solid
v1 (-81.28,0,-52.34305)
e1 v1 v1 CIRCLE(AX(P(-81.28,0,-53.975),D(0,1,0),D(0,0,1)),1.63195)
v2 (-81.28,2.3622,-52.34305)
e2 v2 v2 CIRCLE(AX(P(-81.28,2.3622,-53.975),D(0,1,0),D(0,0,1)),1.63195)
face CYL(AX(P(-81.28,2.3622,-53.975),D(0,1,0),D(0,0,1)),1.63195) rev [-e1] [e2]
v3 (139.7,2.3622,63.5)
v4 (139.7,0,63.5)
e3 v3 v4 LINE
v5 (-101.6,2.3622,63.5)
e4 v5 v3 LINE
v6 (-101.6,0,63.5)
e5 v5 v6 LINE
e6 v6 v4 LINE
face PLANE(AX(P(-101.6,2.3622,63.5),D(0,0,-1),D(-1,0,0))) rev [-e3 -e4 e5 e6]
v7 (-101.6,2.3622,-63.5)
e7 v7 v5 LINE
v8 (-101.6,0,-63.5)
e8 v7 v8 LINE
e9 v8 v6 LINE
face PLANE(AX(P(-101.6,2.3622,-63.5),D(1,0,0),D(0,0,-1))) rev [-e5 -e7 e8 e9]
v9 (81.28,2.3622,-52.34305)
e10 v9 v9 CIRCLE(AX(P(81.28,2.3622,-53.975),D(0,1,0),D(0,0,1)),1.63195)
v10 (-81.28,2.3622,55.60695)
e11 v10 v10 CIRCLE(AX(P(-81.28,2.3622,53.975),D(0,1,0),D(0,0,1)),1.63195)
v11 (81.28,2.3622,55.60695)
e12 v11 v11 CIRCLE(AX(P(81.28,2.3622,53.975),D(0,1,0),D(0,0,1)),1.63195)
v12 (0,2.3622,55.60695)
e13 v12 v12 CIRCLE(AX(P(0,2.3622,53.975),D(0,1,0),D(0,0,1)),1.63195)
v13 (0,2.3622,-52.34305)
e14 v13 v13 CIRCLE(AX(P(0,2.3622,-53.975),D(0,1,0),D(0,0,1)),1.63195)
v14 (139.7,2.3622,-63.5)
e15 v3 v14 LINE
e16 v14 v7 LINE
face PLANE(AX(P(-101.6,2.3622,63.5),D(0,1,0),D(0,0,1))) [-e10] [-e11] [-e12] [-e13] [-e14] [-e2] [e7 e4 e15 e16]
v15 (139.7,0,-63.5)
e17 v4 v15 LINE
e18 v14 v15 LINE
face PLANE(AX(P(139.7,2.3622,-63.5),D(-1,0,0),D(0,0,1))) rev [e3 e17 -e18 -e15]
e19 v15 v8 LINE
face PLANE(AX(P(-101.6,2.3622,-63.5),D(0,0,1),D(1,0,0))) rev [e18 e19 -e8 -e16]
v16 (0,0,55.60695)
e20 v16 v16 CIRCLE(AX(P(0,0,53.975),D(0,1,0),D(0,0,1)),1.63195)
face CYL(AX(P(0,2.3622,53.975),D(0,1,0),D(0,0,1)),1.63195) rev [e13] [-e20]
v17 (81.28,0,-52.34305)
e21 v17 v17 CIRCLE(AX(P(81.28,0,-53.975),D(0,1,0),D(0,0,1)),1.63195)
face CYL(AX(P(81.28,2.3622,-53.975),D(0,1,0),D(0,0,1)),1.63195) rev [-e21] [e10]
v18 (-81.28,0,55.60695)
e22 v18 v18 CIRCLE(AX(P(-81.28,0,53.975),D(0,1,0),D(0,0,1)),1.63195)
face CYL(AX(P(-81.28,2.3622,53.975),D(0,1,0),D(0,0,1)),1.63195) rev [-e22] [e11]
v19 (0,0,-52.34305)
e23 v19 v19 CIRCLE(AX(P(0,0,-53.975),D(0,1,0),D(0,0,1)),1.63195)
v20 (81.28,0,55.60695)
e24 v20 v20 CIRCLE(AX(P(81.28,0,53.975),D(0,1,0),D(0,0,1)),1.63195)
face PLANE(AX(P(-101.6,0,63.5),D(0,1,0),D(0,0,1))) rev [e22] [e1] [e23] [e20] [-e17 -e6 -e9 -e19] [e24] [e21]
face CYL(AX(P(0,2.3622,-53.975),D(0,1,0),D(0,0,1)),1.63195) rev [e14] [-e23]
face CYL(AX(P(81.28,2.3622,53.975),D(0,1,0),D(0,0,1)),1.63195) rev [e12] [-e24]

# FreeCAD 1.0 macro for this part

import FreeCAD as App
import Part
import Sketcher
from FreeCAD import Vector
Q = App.Units.Quantity

doc = App.newDocument("Part")
body = doc.addObject("PartDesign::Body", "Body")

sketch1 = body.newObject("Sketcher::SketchObject", "Sketch")
sketch1.AttachmentSupport = (doc.getObject("XZ_Plane"), [""])
sketch1.MapMode = "FlatFace"
sketch1.addGeometry(Part.LineSegment(Vector(-102, -64, 0), Vector(-102, 64, 0)), False)
sketch1.addGeometry(Part.LineSegment(Vector(-102, 64, 0), Vector(102, 64, 0)), False)
sketch1.addGeometry(Part.LineSegment(Vector(102, 64, 0), Vector(102, -64, 0)), False)
sketch1.addGeometry(Part.LineSegment(Vector(102, -64, 0), Vector(-102, -64, 0)), False)
sketch1.addConstraint(Sketcher.Constraint("Coincident", 0, 2, 1, 1))
sketch1.addConstraint(Sketcher.Constraint("Coincident", 1, 2, 2, 1))
sketch1.addConstraint(Sketcher.Constraint("Coincident", 2, 2, 3, 1))
sketch1.addConstraint(Sketcher.Constraint("Coincident", 3, 2, 0, 1))
sketch1.addConstraint(Sketcher.Constraint("Vertical", 0))
sketch1.addConstraint(Sketcher.Constraint("Horizontal", 1))
sketch1.addConstraint(Sketcher.Constraint("Vertical", 2))
sketch1.addConstraint(Sketcher.Constraint("Horizontal", 3))
sketch1.addConstraint(Sketcher.Constraint("Symmetric", 0, 2, 2, 2, -1, 1))
sketch1.addConstraint(Sketcher.Constraint("DistanceX", 1, 1, 1, 2, Q("8 in")))
sketch1.addConstraint(Sketcher.Constraint("DistanceY", 0, 1, 0, 2, Q("5 in")))
pad1 = body.newObject("PartDesign::Pad", "Pad")
pad1.Profile = sketch1
pad1.Length = Q("0.093 in")
pad1.Reversed = True

sketch2 = body.newObject("Sketcher::SketchObject", "Sketch001")
sketch2.AttachmentSupport = (doc.getObject("XZ_Plane"), [""])
sketch2.MapMode = "FlatFace"
sketch2.AttachmentOffset = App.Placement(Vector(0, 0, -0.093 * 25.4), App.Rotation())
sketch2.addGeometry(Part.Circle(Vector(-81.3, -54, 0), Vector(0, 0, 1), 1.6), False)
sketch2.addGeometry(Part.Circle(Vector(0, -54, 0), Vector(0, 0, 1), 1.6), False)
sketch2.addGeometry(Part.Circle(Vector(0, 54, 0), Vector(0, 0, 1), 1.6), False)
sketch2.addGeometry(Part.Circle(Vector(-81.3, 54, 0), Vector(0, 0, 1), 1.6), False)
sketch2.addGeometry(Part.Circle(Vector(81.3, 54, 0), Vector(0, 0, 1), 1.6), False)
sketch2.addGeometry(Part.Circle(Vector(81.3, -54, 0), Vector(0, 0, 1), 1.6), False)
sketch2.addConstraint(Sketcher.Constraint("Equal", 0, 1))
sketch2.addConstraint(Sketcher.Constraint("Equal", 1, 2))
sketch2.addConstraint(Sketcher.Constraint("Equal", 2, 3))
sketch2.addConstraint(Sketcher.Constraint("Equal", 3, 4))
sketch2.addConstraint(Sketcher.Constraint("Equal", 4, 5))
sketch2.addConstraint(Sketcher.Constraint("Symmetric", 1, 3, 2, 3, -1, 1))
sketch2.addConstraint(Sketcher.Constraint("Symmetric", 0, 3, 4, 3, -1, 1))
sketch2.addConstraint(Sketcher.Constraint("Symmetric", 3, 3, 5, 3, -1, 1))
sketch2.addConstraint(Sketcher.Constraint("Symmetric", 3, 3, 4, 3, -2))
sketch2.addConstraint(Sketcher.Constraint("PointOnObject", 1, 3, -2))
sketch2.addConstraint(Sketcher.Constraint("Horizontal", 0, 3, 1, 3))
sketch2.addConstraint(Sketcher.Constraint("Diameter", 0, Q("0.1285 in")))
sketch2.addConstraint(Sketcher.Constraint("DistanceX", 0, 3, -1, 1, Q("3.2 in")))
sketch2.addConstraint(Sketcher.Constraint("DistanceY", 1, 3, 2, 3, Q("4.25 in")))
doc.recompute()
hole = body.newObject("PartDesign::Hole", "Hole")
hole.Profile = sketch2
hole.ThreadType = "None"
hole.Diameter = Q("0.1285 in")
hole.DepthType = "Dimension"
hole.Depth = Q("0.25 in")
hole.DrillPoint = "Angled"
hole.DrillPointAngle = 118
hole.Reversed = True

sketch3 = body.newObject("Sketcher::SketchObject", "Sketch002")
sketch3.AttachmentSupport = (doc.getObject("XZ_Plane"), [""])
sketch3.MapMode = "FlatFace"
sketch3.addGeometry(Part.LineSegment(Vector(102, -64, 0), Vector(102, 64, 0)), False)
sketch3.addGeometry(Part.LineSegment(Vector(102, 64, 0), Vector(140, 64, 0)), False)
sketch3.addGeometry(Part.LineSegment(Vector(140, 64, 0), Vector(140, -64, 0)), False)
sketch3.addGeometry(Part.LineSegment(Vector(140, -64, 0), Vector(102, -64, 0)), False)
sketch3.addConstraint(Sketcher.Constraint("Coincident", 0, 2, 1, 1))
sketch3.addConstraint(Sketcher.Constraint("Coincident", 1, 2, 2, 1))
sketch3.addConstraint(Sketcher.Constraint("Coincident", 2, 2, 3, 1))
sketch3.addConstraint(Sketcher.Constraint("Coincident", 3, 2, 0, 1))
sketch3.addConstraint(Sketcher.Constraint("Vertical", 0))
sketch3.addConstraint(Sketcher.Constraint("Horizontal", 1))
sketch3.addConstraint(Sketcher.Constraint("Vertical", 2))
sketch3.addConstraint(Sketcher.Constraint("Horizontal", 3))
sketch3.addConstraint(Sketcher.Constraint("DistanceY", 0, 1, 0, 2, Q("5 in")))
sketch3.addConstraint(Sketcher.Constraint("DistanceX", 1, 1, 1, 2, Q("1.5 in")))
sketch3.addConstraint(Sketcher.Constraint("DistanceX", -1, 1, 0, 2, Q("4 in")))
sketch3.addConstraint(Sketcher.Constraint("DistanceY", -1, 1, 0, 2, Q("2.5 in")))
pad2 = body.newObject("PartDesign::Pad", "Pad001")
pad2.Profile = sketch3
pad2.Length = Q("0.093 in")
pad2.Reversed = True

doc.recompute()
